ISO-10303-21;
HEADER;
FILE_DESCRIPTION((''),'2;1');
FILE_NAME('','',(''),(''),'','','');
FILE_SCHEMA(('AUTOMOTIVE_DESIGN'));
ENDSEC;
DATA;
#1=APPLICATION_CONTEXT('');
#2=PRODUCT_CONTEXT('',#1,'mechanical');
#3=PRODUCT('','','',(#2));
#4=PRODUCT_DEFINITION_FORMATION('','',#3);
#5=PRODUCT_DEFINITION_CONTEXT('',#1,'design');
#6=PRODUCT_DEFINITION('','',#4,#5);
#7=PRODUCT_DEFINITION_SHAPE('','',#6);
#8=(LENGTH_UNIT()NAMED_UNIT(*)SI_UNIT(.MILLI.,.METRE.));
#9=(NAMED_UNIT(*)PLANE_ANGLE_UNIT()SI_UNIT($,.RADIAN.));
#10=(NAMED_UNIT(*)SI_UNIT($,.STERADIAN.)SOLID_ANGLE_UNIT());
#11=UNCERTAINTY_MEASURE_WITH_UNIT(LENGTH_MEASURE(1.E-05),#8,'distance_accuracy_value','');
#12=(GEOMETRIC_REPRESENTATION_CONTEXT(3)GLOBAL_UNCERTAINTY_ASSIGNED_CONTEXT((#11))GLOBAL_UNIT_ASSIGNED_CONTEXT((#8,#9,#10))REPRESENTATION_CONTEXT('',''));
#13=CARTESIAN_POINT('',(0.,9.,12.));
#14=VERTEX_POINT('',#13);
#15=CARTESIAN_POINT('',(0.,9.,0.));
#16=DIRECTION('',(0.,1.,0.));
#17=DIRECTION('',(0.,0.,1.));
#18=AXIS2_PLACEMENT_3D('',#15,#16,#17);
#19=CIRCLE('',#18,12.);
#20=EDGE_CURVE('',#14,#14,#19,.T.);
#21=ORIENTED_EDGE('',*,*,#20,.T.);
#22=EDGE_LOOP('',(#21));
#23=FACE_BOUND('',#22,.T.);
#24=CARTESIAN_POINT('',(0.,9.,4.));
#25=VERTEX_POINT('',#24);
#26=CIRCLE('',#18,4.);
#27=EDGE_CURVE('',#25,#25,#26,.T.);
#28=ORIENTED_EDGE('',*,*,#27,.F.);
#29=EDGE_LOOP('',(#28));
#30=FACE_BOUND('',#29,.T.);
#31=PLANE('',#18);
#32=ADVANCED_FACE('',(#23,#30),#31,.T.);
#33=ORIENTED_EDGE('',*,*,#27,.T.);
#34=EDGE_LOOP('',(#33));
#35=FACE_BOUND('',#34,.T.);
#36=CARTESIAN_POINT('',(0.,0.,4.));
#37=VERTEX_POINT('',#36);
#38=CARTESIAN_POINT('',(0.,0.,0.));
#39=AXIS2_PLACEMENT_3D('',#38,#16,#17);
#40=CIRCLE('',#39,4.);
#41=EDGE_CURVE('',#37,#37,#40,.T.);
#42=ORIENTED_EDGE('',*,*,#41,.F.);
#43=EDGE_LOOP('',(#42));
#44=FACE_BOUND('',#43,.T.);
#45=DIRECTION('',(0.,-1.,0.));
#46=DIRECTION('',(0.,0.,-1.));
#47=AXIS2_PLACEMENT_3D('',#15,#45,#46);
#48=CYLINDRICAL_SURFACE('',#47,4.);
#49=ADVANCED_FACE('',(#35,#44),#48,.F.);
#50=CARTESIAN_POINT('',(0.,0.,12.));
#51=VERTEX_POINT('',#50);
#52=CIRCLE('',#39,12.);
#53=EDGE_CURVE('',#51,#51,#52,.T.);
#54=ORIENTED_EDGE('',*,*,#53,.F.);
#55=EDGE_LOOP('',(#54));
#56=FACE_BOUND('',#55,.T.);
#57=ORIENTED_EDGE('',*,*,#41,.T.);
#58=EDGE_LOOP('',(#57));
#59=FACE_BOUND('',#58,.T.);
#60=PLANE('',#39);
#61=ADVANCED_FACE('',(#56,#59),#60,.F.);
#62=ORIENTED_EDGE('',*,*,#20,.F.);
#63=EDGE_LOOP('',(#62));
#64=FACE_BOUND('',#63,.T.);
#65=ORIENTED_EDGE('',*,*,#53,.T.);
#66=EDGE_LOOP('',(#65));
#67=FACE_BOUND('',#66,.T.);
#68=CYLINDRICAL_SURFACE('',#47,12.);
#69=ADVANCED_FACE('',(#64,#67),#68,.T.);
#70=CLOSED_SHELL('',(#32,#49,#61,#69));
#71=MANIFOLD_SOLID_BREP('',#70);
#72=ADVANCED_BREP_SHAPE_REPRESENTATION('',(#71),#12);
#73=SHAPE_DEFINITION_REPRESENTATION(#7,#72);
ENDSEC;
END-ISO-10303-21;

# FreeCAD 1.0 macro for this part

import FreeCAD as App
import Part
import Sketcher
Q = App.Units.Quantity

doc = App.newDocument("Part")
body = doc.addObject("PartDesign::Body", "Body")

# Sketch on XZ plane
sketch1 = body.newObject("Sketcher::SketchObject", "Sketch")
sketch1.AttachmentSupport = (doc.getObject("XZ_Plane"), [""])
sketch1.MapMode = "FlatFace"
sketch1.addGeometry([
    Part.Circle(App.Vector(0, 0, 0), App.Vector(0, 0, 1), 12),
    Part.Circle(App.Vector(0, 0, 0), App.Vector(0, 0, 1), 4),
], False)
sketch1.addConstraint([
    Sketcher.Constraint("Coincident", 0, 3, -1, 1),
    Sketcher.Constraint("Coincident", 1, 3, -1, 1),
    Sketcher.Constraint("Diameter", 0, Q("24 mm")),
    Sketcher.Constraint("Diameter", 1, Q("8 mm")),
])
pad1 = body.newObject("PartDesign::Pad", "Pad")
pad1.Profile = sketch1
pad1.Length = 9
pad1.Reversed = True

doc.recompute()
